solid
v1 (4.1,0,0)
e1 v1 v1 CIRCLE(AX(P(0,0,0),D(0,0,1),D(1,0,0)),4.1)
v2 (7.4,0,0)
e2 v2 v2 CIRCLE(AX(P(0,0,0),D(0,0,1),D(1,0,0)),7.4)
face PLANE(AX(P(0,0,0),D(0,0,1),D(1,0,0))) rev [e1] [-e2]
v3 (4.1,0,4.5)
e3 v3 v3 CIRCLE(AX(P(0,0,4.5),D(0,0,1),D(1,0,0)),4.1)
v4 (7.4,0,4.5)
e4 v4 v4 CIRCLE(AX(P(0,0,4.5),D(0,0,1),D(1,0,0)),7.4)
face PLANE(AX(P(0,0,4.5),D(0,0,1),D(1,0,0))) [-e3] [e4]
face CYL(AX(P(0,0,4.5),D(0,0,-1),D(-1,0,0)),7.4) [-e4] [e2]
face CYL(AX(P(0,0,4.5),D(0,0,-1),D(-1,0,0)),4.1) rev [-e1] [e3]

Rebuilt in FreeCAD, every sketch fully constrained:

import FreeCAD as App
import Part
import Sketcher
from FreeCAD import Vector
Q = App.Units.Quantity

doc = App.newDocument("Part")
params = doc.addObject("Spreadsheet::Sheet", "Params")
for row, (alias, value) in enumerate([
    ("sketch1_diameter", "14.8 mm"),
    ("sketch1_diameter2", "8.2 mm"),
    ("pad1_length", "4.5 mm"),
], start=1):
    params.set(f"A{row}", alias)
    params.set(f"B{row}", "=" + value)
    params.setAlias(f"B{row}", alias)

body = doc.addObject("PartDesign::Body", "Body")

sketch1 = body.newObject("Sketcher::SketchObject", "Sketch")
sketch1.AttachmentSupport = (doc.getObject("XY_Plane"), [""])
sketch1.MapMode = "FlatFace"
sketch1.addGeometry(Part.Circle(Vector(0, 0, 0), Vector(0, 0, 1), 7.4), False)
sketch1.addGeometry(Part.Circle(Vector(0, 0, 0), Vector(0, 0, 1), 4.1), False)
sketch1.addConstraint(Sketcher.Constraint("Coincident", 0, 3, -1, 1))
sketch1.addConstraint(Sketcher.Constraint("Coincident", 1, 3, -1, 1))
sketch1.addConstraint(Sketcher.Constraint("Diameter", 0, Q("14.8 mm")))
sketch1.addConstraint(Sketcher.Constraint("Diameter", 1, Q("8.2 mm")))
sketch1.setExpression("Constraints[2]", "Params.sketch1_diameter")
sketch1.setExpression("Constraints[3]", "Params.sketch1_diameter2")
pad1 = body.newObject("PartDesign::Pad", "Pad")
pad1.Profile = sketch1
pad1.setExpression("Length", "Params.pad1_length")

doc.recompute()
